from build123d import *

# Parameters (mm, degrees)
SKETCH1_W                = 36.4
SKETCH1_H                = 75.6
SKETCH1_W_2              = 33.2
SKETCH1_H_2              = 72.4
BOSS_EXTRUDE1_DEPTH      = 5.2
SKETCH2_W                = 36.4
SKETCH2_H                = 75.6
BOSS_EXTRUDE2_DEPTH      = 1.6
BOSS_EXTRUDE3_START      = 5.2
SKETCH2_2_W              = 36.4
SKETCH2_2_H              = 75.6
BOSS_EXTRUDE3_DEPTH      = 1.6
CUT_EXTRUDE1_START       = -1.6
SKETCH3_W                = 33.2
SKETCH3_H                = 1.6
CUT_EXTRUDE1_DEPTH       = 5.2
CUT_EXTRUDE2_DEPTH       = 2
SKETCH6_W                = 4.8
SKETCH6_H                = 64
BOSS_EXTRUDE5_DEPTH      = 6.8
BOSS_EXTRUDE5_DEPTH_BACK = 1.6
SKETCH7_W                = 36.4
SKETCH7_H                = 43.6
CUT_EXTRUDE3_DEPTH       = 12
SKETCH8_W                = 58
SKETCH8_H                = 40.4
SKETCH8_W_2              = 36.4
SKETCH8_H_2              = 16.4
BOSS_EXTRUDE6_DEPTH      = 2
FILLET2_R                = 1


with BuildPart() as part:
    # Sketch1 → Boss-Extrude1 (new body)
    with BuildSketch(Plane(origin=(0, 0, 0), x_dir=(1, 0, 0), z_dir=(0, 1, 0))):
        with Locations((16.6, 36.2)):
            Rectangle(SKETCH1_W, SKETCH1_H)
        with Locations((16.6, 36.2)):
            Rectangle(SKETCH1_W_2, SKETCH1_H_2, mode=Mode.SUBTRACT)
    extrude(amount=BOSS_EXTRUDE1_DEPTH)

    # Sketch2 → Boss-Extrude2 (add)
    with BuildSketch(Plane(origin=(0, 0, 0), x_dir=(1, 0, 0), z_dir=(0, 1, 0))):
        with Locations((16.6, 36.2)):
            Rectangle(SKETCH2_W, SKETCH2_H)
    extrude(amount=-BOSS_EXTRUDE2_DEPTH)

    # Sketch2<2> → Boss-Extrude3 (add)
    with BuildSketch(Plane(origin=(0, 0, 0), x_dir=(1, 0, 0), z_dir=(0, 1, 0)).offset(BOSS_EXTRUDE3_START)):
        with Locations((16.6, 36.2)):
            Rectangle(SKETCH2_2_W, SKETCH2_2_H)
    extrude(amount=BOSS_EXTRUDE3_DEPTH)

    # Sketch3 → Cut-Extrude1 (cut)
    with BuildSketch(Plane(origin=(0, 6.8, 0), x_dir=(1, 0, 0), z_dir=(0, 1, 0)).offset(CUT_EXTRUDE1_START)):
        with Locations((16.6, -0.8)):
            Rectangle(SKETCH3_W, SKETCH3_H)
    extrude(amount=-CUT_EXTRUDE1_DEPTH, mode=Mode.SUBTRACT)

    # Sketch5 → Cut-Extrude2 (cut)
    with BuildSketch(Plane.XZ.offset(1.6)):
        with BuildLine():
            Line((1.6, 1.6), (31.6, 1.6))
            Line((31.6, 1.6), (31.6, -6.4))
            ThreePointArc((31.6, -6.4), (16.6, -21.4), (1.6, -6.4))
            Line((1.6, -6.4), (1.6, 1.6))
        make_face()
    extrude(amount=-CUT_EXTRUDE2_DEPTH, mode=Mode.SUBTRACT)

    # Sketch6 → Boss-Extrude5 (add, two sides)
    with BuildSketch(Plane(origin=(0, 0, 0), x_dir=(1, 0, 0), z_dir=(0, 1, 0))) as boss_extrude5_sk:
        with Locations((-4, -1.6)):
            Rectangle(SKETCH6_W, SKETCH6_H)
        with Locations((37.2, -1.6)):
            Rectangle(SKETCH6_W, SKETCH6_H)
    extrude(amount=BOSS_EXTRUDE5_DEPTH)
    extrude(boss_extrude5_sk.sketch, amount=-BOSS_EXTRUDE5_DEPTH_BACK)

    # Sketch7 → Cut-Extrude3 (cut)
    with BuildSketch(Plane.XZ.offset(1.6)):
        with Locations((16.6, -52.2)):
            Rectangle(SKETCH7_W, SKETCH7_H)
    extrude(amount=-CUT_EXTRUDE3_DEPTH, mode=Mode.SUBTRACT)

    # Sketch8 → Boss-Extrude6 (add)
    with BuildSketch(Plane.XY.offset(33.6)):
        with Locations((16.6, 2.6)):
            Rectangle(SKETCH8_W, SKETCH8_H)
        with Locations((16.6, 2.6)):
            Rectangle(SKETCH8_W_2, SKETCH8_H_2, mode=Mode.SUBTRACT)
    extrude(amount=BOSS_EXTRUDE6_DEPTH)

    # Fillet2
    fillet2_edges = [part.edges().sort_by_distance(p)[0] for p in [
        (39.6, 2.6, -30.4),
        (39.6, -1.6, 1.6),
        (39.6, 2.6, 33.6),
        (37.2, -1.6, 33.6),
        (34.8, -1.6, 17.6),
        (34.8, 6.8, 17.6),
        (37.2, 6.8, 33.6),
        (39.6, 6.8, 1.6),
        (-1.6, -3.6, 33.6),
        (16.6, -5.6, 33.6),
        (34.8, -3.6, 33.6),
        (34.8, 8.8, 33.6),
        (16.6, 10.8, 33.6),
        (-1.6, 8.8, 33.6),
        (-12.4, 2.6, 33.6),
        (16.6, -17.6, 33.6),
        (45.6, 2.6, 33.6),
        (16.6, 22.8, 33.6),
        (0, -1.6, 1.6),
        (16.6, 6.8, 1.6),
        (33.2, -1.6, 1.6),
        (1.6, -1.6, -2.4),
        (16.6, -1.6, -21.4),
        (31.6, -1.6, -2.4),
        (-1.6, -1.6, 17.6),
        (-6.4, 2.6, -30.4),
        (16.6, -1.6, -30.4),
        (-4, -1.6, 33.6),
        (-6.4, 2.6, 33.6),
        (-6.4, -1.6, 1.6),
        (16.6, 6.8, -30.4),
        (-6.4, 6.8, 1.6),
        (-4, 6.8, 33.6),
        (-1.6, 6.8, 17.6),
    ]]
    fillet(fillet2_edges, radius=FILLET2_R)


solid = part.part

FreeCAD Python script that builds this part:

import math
import FreeCAD as App
import Part
import Sketcher

V = App.Vector


def edges_at(feature, points):
    """Names of the edges that pass closest to the given points."""
    edges = feature.Shape.Edges
    near = lambda p: min(range(len(edges)), key=lambda i: edges[i].distToShape(Part.Vertex(*p))[0])
    return sorted({f"Edge{near(p) + 1}" for p in points})


def add_polygon(sketch, points):
    """Adds a closed chain of lines whose ends are joined by coincident constraints."""
    first, n = sketch.GeometryCount, len(points)
    for a, b in zip(points, points[1:] + points[:1]):
        sketch.addGeometry(Part.LineSegment(App.Vector(*a, 0), App.Vector(*b, 0)), False)
    for i in range(n):
        sketch.addConstraint(Sketcher.Constraint("Coincident", first + i, 2, first + (i + 1) % n, 1))

doc = App.newDocument("Part")
body = doc.addObject("PartDesign::Body", "Body")

# Sketch on XZ plane
sketch1 = body.newObject("Sketcher::SketchObject", "Sketch")
sketch1.AttachmentSupport = (doc.getObject("XZ_Plane"), [""])
sketch1.MapMode = "FlatFace"
add_polygon(sketch1, [(-2, -74), (-2, 2), (35, 2), (35, -74)])  # lines 0-3
add_polygon(sketch1, [(33, 0), (0, 0), (0, -72), (33, -72)])  # lines 4-7
sketch1.addConstraint([
    Sketcher.Constraint("Vertical", 0),
    Sketcher.Constraint("Horizontal", 1),
    Sketcher.Constraint("Vertical", 2),
    Sketcher.Constraint("Horizontal", 3),
    Sketcher.Constraint("Horizontal", 4),
    Sketcher.Constraint("Vertical", 5),
    Sketcher.Constraint("Horizontal", 6),
    Sketcher.Constraint("Vertical", 7),
    Sketcher.Constraint("Coincident", 4, 2, -1, 1),
    Sketcher.Constraint("DistanceX", 1, 1, 1, 2, 36.4),
    Sketcher.Constraint("DistanceX", 4, 2, 4, 1, 33.2),
    Sketcher.Constraint("DistanceY", 0, 1, 0, 2, 75.6),
    Sketcher.Constraint("DistanceY", 5, 2, 5, 1, 72.4),
    Sketcher.Constraint("DistanceY", 2, 2, -1, 1, 74.0),
    Sketcher.Constraint("DistanceX", 0, 2, -1, 1, 1.6),
])
pad1 = body.newObject("PartDesign::Pad", "Pad")
pad1.Profile = sketch1
pad1.Length = 5.2
pad1.Reversed = True

# Sketch on XZ plane
sketch2 = body.newObject("Sketcher::SketchObject", "Sketch001")
sketch2.AttachmentSupport = (doc.getObject("XZ_Plane"), [""])
sketch2.MapMode = "FlatFace"
add_polygon(sketch2, [(-2, -74), (-2, 2), (35, 2), (35, -74)])  # lines 0-3
sketch2.addConstraint([
    Sketcher.Constraint("Vertical", 0),
    Sketcher.Constraint("Horizontal", 1),
    Sketcher.Constraint("Vertical", 2),
    Sketcher.Constraint("Horizontal", 3),
    Sketcher.Constraint("DistanceX", 1, 1, 1, 2, 36.4),
    Sketcher.Constraint("DistanceY", 0, 1, 0, 2, 75.6),
    Sketcher.Constraint("DistanceY", 2, 2, -1, 1, 74.0),
    Sketcher.Constraint("DistanceX", 0, 2, -1, 1, 1.6),
])
pad2 = body.newObject("PartDesign::Pad", "Pad001")
pad2.Profile = sketch2
pad2.Length = 1.6

# Sketch on XZ plane
sketch3 = body.newObject("Sketcher::SketchObject", "Sketch002")
sketch3.AttachmentSupport = (doc.getObject("XZ_Plane"), [""])
sketch3.MapMode = "FlatFace"
sketch3.AttachmentOffset = App.Placement(V(0, 0, -5.2), App.Rotation())
add_polygon(sketch3, [(-2, -74), (-2, 2), (35, 2), (35, -74)])  # lines 0-3
sketch3.addConstraint([
    Sketcher.Constraint("Vertical", 0),
    Sketcher.Constraint("Horizontal", 1),
    Sketcher.Constraint("Vertical", 2),
    Sketcher.Constraint("Horizontal", 3),
    Sketcher.Constraint("DistanceX", 1, 1, 1, 2, 36.4),
    Sketcher.Constraint("DistanceY", 0, 1, 0, 2, 75.6),
    Sketcher.Constraint("DistanceY", 2, 2, -1, 1, 74.0),
    Sketcher.Constraint("DistanceX", 0, 2, -1, 1, 1.6),
])
pad3 = body.newObject("PartDesign::Pad", "Pad002")
pad3.Profile = sketch3
pad3.Length = 1.6
pad3.Reversed = True

# Sketch on XZ plane
sketch4 = body.newObject("Sketcher::SketchObject", "Sketch003")
sketch4.AttachmentSupport = (doc.getObject("XZ_Plane"), [""])
sketch4.MapMode = "FlatFace"
sketch4.AttachmentOffset = App.Placement(V(0, 0, -5.2), App.Rotation())
add_polygon(sketch4, [(0, 0), (0, 1.6), (33.2, 1.6), (33.2, 0)])  # lines 0-3
sketch4.addConstraint([
    Sketcher.Constraint("Vertical", 0),
    Sketcher.Constraint("Horizontal", 1),
    Sketcher.Constraint("Vertical", 2),
    Sketcher.Constraint("Horizontal", 3),
    Sketcher.Constraint("Coincident", 3, 2, -1, 1),
    Sketcher.Constraint("DistanceX", 1, 1, 1, 2, 33.2),
    Sketcher.Constraint("DistanceY", 0, 1, 0, 2, 1.6),
])
pocket1 = body.newObject("PartDesign::Pocket", "Pocket")
pocket1.Profile = sketch4
pocket1.Length = 5.2
pocket1.Reversed = True

# Sketch on XZ plane
sketch5 = body.newObject("Sketcher::SketchObject", "Sketch004")
sketch5.AttachmentSupport = (doc.getObject("XZ_Plane"), [""])
sketch5.MapMode = "FlatFace"
sketch5.AttachmentOffset = App.Placement(V(0, 0, 1.6), App.Rotation())
sketch5.addGeometry([
    Part.LineSegment(V(32, 2, 0), V(2, 2, 0)),
    Part.LineSegment(V(2, 2, 0), V(2, -6, 0)),
    Part.ArcOfCircle(Part.Circle(V(17, -6, 0), V(0, 0, 1), 15), math.radians(180), math.radians(360)),
    Part.LineSegment(V(32, -6, 0), V(32, 2, 0)),
], False)
sketch5.addConstraint([
    Sketcher.Constraint("Coincident", 0, 2, 1, 1),
    Sketcher.Constraint("Tangent", 1, 2, 2, 1),
    Sketcher.Constraint("Tangent", 2, 2, 3, 1),
    Sketcher.Constraint("Coincident", 3, 2, 0, 1),
    Sketcher.Constraint("Horizontal", 0),
    Sketcher.Constraint("Vertical", 1),
    Sketcher.Constraint("Vertical", 3),
    Sketcher.Constraint("Radius", 2, 15.0),
    Sketcher.Constraint("DistanceY", 1, 2, 1, 1, 8.0),
    Sketcher.Constraint("DistanceX", -1, 1, 2, 3, 16.6),
    Sketcher.Constraint("DistanceY", 2, 3, -1, 1, 6.4),
])
pocket2 = body.newObject("PartDesign::Pocket", "Pocket001")
pocket2.Profile = sketch5
pocket2.Length = 2

# Sketch on XZ plane
sketch6 = body.newObject("Sketcher::SketchObject", "Sketch005")
sketch6.AttachmentSupport = (doc.getObject("XZ_Plane"), [""])
sketch6.MapMode = "FlatFace"
add_polygon(sketch6, [(-6.4, -30.4), (-6.4, 33.6), (-1.6, 33.6), (-1.6, -30.4)])  # lines 0-3
add_polygon(sketch6, [(34.8, -30.4), (34.8, 33.6), (39.6, 33.6), (39.6, -30.4)])  # lines 4-7
sketch6.addConstraint([
    Sketcher.Constraint("Vertical", 0),
    Sketcher.Constraint("Horizontal", 1),
    Sketcher.Constraint("Vertical", 2),
    Sketcher.Constraint("Horizontal", 3),
    Sketcher.Constraint("Vertical", 4),
    Sketcher.Constraint("Horizontal", 5),
    Sketcher.Constraint("Vertical", 6),
    Sketcher.Constraint("Horizontal", 7),
    Sketcher.Constraint("Horizontal", 1, 2, 4, 2),
    Sketcher.Constraint("Horizontal", 3, 2, 6, 2),
    Sketcher.Constraint("Equal", 3, 5),
    Sketcher.Constraint("DistanceY", 0, 1, 0, 2, 64.0),
    Sketcher.Constraint("DistanceX", 1, 1, 1, 2, 4.8),
    Sketcher.Constraint("DistanceX", 0, 2, 5, 2, 46.0),
    Sketcher.Constraint("DistanceX", 0, 2, -1, 1, 6.4),
    Sketcher.Constraint("DistanceY", -1, 1, 0, 2, 33.6),
])
pad4 = body.newObject("PartDesign::Pad", "Pad003")
pad4.Profile = sketch6
pad4.Type = "TwoLengths"
pad4.Length = 6.8
pad4.Length2 = 1.6
pad4.Reversed = True

# Sketch on XZ plane
sketch7 = body.newObject("Sketcher::SketchObject", "Sketch006")
sketch7.AttachmentSupport = (doc.getObject("XZ_Plane"), [""])
sketch7.MapMode = "FlatFace"
sketch7.AttachmentOffset = App.Placement(V(0, 0, 1.6), App.Rotation())
add_polygon(sketch7, [(-2, -30), (-2, -74), (35, -74), (35, -30)])  # lines 0-3
sketch7.addConstraint([
    Sketcher.Constraint("Vertical", 0),
    Sketcher.Constraint("Horizontal", 1),
    Sketcher.Constraint("Vertical", 2),
    Sketcher.Constraint("Horizontal", 3),
    Sketcher.Constraint("DistanceX", 1, 1, 1, 2, 36.4),
    Sketcher.Constraint("DistanceY", 0, 2, 0, 1, 43.6),
    Sketcher.Constraint("DistanceY", 0, 2, -1, 1, 74.0),
    Sketcher.Constraint("DistanceX", 0, 2, -1, 1, 1.6),
])
pocket3 = body.newObject("PartDesign::Pocket", "Pocket002")
pocket3.Profile = sketch7
pocket3.Length = 12

# Sketch on XY plane
sketch8 = body.newObject("Sketcher::SketchObject", "Sketch007")
sketch8.AttachmentSupport = (doc.getObject("XY_Plane"), [""])
sketch8.MapMode = "FlatFace"
sketch8.AttachmentOffset = App.Placement(V(0, 0, 33.6), App.Rotation())
add_polygon(sketch8, [(-12, 23), (-12, -18), (46, -18), (46, 23)])  # lines 0-3
add_polygon(sketch8, [(35, -6), (-2, -6), (-2, 11), (35, 11)])  # lines 4-7
sketch8.addConstraint([
    Sketcher.Constraint("Vertical", 0),
    Sketcher.Constraint("Horizontal", 1),
    Sketcher.Constraint("Vertical", 2),
    Sketcher.Constraint("Horizontal", 3),
    Sketcher.Constraint("Horizontal", 4),
    Sketcher.Constraint("Vertical", 5),
    Sketcher.Constraint("Horizontal", 6),
    Sketcher.Constraint("Vertical", 7),
    Sketcher.Constraint("DistanceX", 1, 1, 1, 2, 58.0),
    Sketcher.Constraint("DistanceX", 4, 2, 4, 1, 36.4),
    Sketcher.Constraint("DistanceY", 0, 2, 0, 1, 40.4),
    Sketcher.Constraint("DistanceY", 5, 1, 5, 2, 16.4),
    Sketcher.Constraint("DistanceY", 0, 2, 4, 2, 12.0),
    Sketcher.Constraint("DistanceX", 0, 2, -1, 1, 12.4),
    Sketcher.Constraint("DistanceY", 0, 2, -1, 1, 17.6),
    Sketcher.Constraint("DistanceX", 4, 2, -1, 1, 1.6),
])
pad5 = body.newObject("PartDesign::Pad", "Pad004")
pad5.Profile = sketch8
pad5.Length = 2
doc.recompute()

fillet = body.newObject("PartDesign::Fillet", "Fillet")
fillet.Base = (pad5, edges_at(pad5, [
    (39.6, 2.6, -30.4),
    (39.6, -1.6, 1.6),
    (39.6, 2.6, 33.6),
    (37.2, -1.6, 33.6),
    (34.8, -1.6, 17.6),
    (34.8, 6.8, 17.6),
    (37.2, 6.8, 33.6),
    (39.6, 6.8, 1.6),
    (-1.6, -3.6, 33.6),
    (16.6, -5.6, 33.6),
    (34.8, -3.6, 33.6),
    (34.8, 8.8, 33.6),
    (16.6, 10.8, 33.6),
    (-1.6, 8.8, 33.6),
    (-12.4, 2.6, 33.6),
    (16.6, -17.6, 33.6),
    (45.6, 2.6, 33.6),
    (16.6, 22.8, 33.6),
    (0, -1.6, 1.6),
    (16.6, 6.8, 1.6),
    (33.2, -1.6, 1.6),
    (1.6, -1.6, -2.4),
    (16.6, -1.6, -21.4),
    (31.6, -1.6, -2.4),
    (-1.6, -1.6, 17.6),
    (-6.4, 2.6, -30.4),
    (16.6, -1.6, -30.4),
    (-4, -1.6, 33.6),
    (-6.4, 2.6, 33.6),
    (-6.4, -1.6, 1.6),
    (16.6, 6.8, -30.4),
    (-6.4, 6.8, 1.6),
    (-4, 6.8, 33.6),
    (-1.6, 6.8, 17.6),
]))
fillet.Radius = 1

doc.recompute()
